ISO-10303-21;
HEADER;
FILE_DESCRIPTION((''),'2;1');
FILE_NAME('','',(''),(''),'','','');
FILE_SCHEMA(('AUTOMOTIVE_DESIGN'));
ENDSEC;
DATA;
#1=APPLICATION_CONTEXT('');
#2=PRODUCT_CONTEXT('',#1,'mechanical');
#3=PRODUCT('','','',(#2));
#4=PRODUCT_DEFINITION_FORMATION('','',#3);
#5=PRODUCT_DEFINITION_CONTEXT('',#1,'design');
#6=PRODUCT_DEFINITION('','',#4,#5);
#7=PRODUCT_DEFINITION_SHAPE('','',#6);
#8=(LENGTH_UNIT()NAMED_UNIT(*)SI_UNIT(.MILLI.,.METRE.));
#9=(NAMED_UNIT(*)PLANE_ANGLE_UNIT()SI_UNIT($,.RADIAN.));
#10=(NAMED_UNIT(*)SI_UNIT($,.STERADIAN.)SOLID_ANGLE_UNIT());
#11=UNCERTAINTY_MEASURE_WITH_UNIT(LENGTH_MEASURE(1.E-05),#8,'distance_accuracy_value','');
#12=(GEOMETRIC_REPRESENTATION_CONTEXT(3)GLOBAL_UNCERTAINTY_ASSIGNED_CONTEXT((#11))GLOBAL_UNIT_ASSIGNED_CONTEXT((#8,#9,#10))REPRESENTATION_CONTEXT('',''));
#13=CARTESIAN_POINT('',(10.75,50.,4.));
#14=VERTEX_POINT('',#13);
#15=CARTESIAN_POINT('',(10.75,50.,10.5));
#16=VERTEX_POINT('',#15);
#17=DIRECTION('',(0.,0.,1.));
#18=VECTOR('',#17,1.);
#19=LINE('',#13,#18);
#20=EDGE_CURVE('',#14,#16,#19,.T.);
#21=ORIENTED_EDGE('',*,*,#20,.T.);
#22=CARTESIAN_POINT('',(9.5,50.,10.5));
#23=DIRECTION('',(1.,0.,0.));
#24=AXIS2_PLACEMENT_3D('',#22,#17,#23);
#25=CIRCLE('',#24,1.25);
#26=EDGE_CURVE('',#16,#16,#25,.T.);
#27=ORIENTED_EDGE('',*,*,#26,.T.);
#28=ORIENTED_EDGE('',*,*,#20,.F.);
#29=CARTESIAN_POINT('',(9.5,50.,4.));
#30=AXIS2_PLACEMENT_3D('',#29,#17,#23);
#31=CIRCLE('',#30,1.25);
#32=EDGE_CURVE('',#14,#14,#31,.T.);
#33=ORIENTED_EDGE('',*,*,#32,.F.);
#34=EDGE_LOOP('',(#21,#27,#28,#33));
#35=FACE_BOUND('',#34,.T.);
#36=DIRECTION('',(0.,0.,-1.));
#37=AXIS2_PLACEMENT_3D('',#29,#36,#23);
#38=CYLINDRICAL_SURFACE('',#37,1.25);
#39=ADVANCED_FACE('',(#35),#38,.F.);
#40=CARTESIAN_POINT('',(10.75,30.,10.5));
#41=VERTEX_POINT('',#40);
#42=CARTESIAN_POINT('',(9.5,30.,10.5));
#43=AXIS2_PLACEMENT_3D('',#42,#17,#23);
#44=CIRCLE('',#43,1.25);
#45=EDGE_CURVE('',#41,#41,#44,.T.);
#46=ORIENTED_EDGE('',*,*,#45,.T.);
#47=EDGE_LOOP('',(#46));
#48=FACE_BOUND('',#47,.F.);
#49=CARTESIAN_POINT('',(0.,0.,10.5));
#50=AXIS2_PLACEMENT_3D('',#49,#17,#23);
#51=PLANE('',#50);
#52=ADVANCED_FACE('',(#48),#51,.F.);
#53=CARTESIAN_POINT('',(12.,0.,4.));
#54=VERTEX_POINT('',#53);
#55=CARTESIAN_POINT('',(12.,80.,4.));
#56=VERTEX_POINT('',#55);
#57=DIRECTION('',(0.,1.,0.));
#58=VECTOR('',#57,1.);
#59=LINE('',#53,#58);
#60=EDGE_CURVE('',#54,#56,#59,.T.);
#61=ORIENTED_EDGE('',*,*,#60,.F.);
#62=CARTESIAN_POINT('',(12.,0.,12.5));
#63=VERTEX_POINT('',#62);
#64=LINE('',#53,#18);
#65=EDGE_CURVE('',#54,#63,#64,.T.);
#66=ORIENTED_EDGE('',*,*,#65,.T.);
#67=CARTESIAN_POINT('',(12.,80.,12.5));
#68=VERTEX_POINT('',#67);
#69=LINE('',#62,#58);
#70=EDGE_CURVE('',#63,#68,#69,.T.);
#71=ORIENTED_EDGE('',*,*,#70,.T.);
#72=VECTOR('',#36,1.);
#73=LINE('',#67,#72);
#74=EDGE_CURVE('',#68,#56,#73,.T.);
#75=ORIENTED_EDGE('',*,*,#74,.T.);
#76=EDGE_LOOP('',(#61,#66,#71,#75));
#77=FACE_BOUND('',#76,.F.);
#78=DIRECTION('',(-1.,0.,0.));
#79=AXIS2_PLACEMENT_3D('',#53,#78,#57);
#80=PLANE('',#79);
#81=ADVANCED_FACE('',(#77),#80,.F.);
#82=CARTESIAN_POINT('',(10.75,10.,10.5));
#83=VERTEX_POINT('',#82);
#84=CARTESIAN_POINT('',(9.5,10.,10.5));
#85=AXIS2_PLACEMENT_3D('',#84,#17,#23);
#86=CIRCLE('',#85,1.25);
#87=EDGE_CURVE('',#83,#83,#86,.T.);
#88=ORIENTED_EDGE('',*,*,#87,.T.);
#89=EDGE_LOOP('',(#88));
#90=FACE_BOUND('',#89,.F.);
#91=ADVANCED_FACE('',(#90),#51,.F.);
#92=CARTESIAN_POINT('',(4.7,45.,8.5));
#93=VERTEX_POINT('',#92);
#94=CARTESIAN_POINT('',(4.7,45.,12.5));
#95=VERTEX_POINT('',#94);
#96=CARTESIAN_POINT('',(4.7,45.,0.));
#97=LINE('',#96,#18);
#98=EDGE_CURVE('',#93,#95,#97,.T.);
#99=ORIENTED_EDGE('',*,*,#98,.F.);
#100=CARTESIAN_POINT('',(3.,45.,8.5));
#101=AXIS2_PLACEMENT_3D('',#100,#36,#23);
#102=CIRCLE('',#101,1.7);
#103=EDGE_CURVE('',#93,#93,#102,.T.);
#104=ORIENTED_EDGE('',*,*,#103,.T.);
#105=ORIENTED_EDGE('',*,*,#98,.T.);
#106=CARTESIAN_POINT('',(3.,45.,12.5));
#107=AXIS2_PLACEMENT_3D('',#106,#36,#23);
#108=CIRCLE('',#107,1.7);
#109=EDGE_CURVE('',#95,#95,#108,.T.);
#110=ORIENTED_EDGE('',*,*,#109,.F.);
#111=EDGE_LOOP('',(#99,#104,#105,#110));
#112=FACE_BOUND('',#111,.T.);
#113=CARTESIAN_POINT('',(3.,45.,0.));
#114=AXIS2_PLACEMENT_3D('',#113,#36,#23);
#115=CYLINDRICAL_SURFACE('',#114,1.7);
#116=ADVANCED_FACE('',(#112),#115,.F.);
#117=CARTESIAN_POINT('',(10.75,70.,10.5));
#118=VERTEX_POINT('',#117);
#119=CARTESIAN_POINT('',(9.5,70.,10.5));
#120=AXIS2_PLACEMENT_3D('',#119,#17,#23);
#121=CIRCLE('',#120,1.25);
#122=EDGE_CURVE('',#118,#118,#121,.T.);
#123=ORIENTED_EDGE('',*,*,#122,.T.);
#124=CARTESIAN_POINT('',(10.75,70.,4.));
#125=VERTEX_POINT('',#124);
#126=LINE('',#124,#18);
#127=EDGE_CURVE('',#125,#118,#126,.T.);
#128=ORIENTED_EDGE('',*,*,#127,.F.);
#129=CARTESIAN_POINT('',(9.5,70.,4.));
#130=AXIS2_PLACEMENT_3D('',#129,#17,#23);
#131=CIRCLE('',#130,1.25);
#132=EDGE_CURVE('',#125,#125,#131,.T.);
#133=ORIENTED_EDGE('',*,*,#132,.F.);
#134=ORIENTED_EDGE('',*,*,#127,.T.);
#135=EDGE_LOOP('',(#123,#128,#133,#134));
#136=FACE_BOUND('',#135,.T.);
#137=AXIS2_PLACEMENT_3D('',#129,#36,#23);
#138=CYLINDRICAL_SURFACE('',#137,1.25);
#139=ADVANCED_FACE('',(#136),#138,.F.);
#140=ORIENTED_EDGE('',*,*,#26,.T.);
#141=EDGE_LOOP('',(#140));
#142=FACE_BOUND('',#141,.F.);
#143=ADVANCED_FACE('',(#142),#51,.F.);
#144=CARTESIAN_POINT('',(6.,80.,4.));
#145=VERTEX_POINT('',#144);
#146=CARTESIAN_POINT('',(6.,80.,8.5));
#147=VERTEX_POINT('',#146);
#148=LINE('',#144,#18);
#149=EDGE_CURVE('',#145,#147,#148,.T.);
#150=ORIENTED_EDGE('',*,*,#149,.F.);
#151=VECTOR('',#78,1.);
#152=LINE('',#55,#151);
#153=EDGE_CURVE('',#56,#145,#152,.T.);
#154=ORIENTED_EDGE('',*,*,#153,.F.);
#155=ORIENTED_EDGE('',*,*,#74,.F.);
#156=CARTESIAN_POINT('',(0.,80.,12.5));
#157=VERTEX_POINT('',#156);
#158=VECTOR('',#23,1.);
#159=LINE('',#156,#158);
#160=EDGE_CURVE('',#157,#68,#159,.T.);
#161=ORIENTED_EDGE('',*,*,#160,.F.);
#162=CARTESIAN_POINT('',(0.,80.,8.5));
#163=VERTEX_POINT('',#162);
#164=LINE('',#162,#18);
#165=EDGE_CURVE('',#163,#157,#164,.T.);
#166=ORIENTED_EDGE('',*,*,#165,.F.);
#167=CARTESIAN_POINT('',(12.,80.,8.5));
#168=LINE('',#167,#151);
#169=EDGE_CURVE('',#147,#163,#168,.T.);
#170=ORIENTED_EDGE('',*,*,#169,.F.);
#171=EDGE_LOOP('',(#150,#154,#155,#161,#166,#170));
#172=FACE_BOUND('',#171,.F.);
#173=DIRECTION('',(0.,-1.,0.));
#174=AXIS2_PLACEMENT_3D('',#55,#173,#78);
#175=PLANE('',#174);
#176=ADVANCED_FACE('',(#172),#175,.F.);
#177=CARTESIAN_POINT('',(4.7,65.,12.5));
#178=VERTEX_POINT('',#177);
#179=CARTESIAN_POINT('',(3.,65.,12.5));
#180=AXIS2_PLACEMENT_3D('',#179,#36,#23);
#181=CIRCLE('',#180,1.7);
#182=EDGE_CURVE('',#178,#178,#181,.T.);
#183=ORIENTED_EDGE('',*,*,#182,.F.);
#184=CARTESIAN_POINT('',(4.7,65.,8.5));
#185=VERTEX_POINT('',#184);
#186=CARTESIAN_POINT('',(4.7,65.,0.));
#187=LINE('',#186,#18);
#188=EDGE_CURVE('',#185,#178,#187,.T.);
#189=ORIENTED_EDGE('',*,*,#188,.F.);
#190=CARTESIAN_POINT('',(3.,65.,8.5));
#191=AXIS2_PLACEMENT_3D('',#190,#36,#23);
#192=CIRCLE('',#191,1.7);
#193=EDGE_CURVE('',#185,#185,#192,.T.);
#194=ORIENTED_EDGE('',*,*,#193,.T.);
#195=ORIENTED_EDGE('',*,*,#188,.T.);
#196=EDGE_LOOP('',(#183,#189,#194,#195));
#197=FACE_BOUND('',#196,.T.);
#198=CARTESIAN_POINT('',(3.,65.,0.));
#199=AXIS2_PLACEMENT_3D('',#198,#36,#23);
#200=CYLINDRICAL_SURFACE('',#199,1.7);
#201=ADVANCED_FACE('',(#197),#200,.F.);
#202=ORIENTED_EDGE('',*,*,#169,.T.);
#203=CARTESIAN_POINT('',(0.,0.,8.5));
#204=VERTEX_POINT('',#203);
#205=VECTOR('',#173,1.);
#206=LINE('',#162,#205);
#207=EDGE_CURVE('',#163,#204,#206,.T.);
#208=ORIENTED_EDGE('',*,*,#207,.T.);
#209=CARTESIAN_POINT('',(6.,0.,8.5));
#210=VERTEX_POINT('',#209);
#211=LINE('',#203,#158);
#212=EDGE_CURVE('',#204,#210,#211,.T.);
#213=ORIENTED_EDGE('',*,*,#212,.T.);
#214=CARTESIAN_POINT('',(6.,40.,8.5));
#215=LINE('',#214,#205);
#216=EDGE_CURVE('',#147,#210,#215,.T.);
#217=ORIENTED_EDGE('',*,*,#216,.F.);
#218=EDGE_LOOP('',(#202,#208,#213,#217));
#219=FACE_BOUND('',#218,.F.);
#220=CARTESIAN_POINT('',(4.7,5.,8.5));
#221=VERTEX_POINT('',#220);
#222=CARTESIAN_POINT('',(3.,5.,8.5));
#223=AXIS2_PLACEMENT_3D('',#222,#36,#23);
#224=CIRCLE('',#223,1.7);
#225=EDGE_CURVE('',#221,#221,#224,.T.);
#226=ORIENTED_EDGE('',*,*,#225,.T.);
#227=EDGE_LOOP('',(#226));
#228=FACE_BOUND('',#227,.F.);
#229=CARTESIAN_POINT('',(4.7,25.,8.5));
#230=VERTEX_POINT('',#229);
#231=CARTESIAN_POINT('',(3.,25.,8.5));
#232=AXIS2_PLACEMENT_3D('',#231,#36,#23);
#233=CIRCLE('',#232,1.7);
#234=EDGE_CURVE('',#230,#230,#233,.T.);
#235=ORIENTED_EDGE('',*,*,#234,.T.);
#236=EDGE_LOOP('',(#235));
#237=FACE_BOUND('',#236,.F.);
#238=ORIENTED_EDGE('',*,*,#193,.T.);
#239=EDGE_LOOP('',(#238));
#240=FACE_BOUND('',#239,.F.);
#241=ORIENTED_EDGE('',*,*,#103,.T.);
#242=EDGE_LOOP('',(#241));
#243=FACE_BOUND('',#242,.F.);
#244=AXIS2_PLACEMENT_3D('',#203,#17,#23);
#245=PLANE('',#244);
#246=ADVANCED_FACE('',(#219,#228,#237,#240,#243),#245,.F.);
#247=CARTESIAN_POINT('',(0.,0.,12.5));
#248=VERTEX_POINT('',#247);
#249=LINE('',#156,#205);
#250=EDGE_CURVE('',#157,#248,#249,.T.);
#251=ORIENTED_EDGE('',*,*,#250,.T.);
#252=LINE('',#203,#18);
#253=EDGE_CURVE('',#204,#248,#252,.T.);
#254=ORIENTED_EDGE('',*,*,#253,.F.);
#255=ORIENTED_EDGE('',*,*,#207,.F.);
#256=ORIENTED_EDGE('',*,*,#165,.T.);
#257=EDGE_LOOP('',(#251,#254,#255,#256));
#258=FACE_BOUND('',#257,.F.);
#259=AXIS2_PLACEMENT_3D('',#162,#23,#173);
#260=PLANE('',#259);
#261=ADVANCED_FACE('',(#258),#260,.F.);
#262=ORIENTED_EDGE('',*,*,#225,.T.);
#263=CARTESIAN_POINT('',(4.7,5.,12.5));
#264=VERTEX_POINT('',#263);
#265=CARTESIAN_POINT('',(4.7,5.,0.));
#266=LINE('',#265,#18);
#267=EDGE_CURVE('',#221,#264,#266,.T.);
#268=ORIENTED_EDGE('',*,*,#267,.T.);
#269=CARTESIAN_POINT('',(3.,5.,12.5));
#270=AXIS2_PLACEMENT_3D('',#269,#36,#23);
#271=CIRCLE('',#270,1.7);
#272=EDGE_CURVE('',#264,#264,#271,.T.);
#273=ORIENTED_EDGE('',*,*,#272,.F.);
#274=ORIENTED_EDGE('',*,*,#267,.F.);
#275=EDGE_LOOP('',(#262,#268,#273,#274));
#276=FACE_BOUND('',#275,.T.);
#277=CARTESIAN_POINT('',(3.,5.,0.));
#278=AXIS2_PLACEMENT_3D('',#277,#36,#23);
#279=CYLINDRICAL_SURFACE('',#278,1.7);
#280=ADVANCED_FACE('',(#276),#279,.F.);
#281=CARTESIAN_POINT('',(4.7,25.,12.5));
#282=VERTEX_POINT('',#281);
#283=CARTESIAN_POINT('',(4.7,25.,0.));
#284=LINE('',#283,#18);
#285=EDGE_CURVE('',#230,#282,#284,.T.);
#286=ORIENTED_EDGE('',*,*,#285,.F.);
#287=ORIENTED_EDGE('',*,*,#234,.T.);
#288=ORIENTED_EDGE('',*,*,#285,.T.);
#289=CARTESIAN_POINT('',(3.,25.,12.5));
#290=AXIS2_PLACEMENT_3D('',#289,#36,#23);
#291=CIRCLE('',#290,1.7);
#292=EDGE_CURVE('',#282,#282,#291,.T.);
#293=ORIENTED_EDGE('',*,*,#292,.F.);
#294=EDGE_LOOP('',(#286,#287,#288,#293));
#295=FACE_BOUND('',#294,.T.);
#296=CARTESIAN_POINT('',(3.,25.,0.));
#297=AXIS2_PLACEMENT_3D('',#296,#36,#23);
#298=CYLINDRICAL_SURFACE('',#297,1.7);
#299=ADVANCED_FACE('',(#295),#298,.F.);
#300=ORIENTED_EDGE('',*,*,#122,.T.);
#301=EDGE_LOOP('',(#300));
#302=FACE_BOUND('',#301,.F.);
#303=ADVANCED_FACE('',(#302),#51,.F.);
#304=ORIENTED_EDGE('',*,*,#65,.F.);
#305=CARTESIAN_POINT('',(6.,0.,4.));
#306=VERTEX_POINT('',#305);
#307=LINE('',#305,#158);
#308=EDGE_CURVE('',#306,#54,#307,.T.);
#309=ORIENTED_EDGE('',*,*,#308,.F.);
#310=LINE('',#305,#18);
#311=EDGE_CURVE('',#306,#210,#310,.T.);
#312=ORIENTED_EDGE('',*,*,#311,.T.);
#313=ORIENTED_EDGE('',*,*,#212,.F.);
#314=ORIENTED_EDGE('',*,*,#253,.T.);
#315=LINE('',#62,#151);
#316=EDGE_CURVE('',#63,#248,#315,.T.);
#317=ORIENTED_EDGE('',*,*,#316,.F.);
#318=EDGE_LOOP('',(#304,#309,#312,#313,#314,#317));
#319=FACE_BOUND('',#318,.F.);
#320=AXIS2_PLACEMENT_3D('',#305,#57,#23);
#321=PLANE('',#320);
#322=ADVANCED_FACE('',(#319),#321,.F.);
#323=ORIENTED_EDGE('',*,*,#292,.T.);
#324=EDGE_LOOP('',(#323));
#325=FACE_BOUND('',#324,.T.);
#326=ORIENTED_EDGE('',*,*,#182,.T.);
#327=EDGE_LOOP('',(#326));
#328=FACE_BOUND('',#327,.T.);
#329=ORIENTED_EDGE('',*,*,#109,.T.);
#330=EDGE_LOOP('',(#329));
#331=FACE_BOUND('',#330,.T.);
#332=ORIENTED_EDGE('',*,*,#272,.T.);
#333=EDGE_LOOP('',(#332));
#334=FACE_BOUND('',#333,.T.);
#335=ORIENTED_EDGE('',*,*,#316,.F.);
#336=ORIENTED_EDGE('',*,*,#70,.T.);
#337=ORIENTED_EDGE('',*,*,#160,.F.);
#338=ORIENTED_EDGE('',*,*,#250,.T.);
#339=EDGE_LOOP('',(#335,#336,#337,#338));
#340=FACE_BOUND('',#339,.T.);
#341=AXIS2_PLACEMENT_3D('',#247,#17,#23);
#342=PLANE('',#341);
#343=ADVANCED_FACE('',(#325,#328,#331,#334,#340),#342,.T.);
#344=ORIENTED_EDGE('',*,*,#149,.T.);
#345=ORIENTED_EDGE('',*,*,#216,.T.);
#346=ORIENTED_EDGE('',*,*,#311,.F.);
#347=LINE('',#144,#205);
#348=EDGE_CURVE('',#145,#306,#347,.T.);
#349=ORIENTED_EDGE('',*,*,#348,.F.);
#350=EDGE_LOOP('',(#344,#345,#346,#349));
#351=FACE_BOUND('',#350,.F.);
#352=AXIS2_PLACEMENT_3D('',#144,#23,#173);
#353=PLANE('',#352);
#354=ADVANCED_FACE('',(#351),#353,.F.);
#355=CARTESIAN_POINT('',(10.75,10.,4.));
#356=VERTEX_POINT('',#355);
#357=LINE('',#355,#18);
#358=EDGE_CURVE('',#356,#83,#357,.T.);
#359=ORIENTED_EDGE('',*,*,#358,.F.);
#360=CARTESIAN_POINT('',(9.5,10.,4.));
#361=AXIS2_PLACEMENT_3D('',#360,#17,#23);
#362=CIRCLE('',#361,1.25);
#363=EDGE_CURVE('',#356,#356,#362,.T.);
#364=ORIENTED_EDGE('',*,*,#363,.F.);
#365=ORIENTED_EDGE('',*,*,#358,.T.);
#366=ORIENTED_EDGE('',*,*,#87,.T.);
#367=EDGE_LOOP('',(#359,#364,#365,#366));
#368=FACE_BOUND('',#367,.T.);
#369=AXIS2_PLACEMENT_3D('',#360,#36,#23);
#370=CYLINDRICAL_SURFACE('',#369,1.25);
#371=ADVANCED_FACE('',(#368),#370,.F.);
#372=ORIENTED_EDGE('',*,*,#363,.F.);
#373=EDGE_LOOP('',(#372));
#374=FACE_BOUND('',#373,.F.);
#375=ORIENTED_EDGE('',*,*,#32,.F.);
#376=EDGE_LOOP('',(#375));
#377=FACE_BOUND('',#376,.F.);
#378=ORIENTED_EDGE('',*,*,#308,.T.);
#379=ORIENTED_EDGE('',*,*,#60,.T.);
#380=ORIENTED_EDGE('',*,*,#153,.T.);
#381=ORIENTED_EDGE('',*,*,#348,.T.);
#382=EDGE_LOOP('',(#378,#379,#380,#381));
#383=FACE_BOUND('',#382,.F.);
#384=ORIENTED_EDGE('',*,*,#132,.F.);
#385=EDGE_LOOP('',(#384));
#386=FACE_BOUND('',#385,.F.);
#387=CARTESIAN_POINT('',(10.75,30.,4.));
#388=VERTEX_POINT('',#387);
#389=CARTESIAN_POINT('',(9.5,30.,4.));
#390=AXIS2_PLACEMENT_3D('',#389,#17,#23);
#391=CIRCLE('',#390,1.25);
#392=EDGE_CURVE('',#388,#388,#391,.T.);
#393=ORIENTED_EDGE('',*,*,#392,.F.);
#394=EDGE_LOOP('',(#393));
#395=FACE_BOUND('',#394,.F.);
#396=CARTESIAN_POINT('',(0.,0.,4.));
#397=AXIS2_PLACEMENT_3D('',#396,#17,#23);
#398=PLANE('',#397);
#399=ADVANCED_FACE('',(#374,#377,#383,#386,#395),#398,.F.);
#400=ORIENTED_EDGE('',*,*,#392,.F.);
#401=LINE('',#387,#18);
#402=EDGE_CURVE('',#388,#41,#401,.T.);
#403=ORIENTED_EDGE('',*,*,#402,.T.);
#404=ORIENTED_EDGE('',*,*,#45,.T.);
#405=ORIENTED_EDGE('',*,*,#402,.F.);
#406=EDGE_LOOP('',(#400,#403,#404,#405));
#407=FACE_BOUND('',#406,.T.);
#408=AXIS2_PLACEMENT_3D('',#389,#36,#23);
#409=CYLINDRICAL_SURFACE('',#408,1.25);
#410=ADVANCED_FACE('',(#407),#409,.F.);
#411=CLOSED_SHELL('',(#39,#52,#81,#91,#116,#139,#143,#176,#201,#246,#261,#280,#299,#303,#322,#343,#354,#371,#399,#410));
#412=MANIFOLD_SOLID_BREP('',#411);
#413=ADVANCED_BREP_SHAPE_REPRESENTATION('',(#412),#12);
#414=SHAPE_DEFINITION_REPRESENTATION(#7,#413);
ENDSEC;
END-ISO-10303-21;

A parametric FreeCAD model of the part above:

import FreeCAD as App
import Part
import Sketcher


def add_polygon(sketch, points):
    """Adds a closed chain of lines whose ends are joined by coincident constraints."""
    first, n = sketch.GeometryCount, len(points)
    for a, b in zip(points, points[1:] + points[:1]):
        sketch.addGeometry(Part.LineSegment(App.Vector(*a, 0), App.Vector(*b, 0)), False)
    for i in range(n):
        sketch.addConstraint(Sketcher.Constraint("Coincident", first + i, 2, first + (i + 1) % n, 1))

doc = App.newDocument("Part")
body = doc.addObject("PartDesign::Body", "Body")

sketch1 = body.newObject("Sketcher::SketchObject", "Sketch")
sketch1.AttachmentSupport = (doc.getObject("XY_Plane"), [""])
sketch1.MapMode = "FlatFace"
sketch1.AttachmentOffset = App.Placement(App.Vector(0, 0, 4), App.Rotation())
add_polygon(sketch1, [(6, 80), (6, 0), (12, 0), (12, 80)])
sketch1.addConstraint([
    Sketcher.Constraint("Vertical", 0),
    Sketcher.Constraint("Horizontal", 1),
    Sketcher.Constraint("Vertical", 2),
    Sketcher.Constraint("Horizontal", 3),
    Sketcher.Constraint("PointOnObject", 0, 2, -1),
    Sketcher.Constraint("DistanceX", 1, 1, 1, 2, 6.0),
    Sketcher.Constraint("DistanceY", 0, 2, 0, 1, 80.0),
    Sketcher.Constraint("DistanceX", -1, 1, 0, 2, 6.0),
])
pad1 = body.newObject("PartDesign::Pad", "Pad")
pad1.Profile = sketch1
pad1.Length = 8.5

sketch2 = body.newObject("Sketcher::SketchObject", "Sketch001")
sketch2.AttachmentSupport = (doc.getObject("XY_Plane"), [""])
sketch2.MapMode = "FlatFace"
sketch2.AttachmentOffset = App.Placement(App.Vector(0, 0, 8.5), App.Rotation())
add_polygon(sketch2, [(0, 80), (0, 0), (12, 0), (12, 80)])
sketch2.addConstraint([
    Sketcher.Constraint("Vertical", 0),
    Sketcher.Constraint("Horizontal", 1),
    Sketcher.Constraint("Vertical", 2),
    Sketcher.Constraint("Horizontal", 3),
    Sketcher.Constraint("Coincident", 0, 2, -1, 1),
    Sketcher.Constraint("DistanceX", 1, 1, 1, 2, 12.0),
    Sketcher.Constraint("DistanceY", 0, 2, 0, 1, 80.0),
])
pad2 = body.newObject("PartDesign::Pad", "Pad001")
pad2.Profile = sketch2
pad2.Length = 4

sketch3 = body.newObject("Sketcher::SketchObject", "Sketch002")
sketch3.AttachmentSupport = (doc.getObject("XY_Plane"), [""])
sketch3.MapMode = "FlatFace"
sketch3.addGeometry([
    Part.Circle(App.Vector(3, 5, 0), App.Vector(0, 0, 1), 1.7),
    Part.Circle(App.Vector(3, 25, 0), App.Vector(0, 0, 1), 1.7),
    Part.Circle(App.Vector(3, 45, 0), App.Vector(0, 0, 1), 1.7),
    Part.Circle(App.Vector(3, 65, 0), App.Vector(0, 0, 1), 1.7),
], False)
sketch3.addConstraint([
    Sketcher.Constraint("Equal", 0, 1),
    Sketcher.Constraint("Equal", 1, 2),
    Sketcher.Constraint("Equal", 2, 3),
    Sketcher.Constraint("Vertical", 0, 3, 1, 3),
    Sketcher.Constraint("Vertical", 1, 3, 2, 3),
    Sketcher.Constraint("Vertical", 2, 3, 3, 3),
    Sketcher.Constraint("Diameter", 0, 3.4),
    Sketcher.Constraint("DistanceX", -1, 1, 0, 3, 3.0),
    Sketcher.Constraint("DistanceY", -1, 1, 0, 3, 5.0),
    Sketcher.Constraint("DistanceY", -1, 1, 1, 3, 25.0),
    Sketcher.Constraint("DistanceY", -1, 1, 2, 3, 45.0),
    Sketcher.Constraint("DistanceY", -1, 1, 3, 3, 65.0),
])
pocket1 = body.newObject("PartDesign::Pocket", "Pocket")
pocket1.Profile = sketch3
pocket1.Type = "ThroughAll"
pocket1.Reversed = True

sketch4 = body.newObject("Sketcher::SketchObject", "Sketch003")
sketch4.AttachmentSupport = (doc.getObject("XY_Plane"), [""])
sketch4.MapMode = "FlatFace"
sketch4.AttachmentOffset = App.Placement(App.Vector(0, 0, 4), App.Rotation())
sketch4.addGeometry([
    Part.Circle(App.Vector(9.5, 10, 0), App.Vector(0, 0, 1), 1.25),
    Part.Circle(App.Vector(9.5, 30, 0), App.Vector(0, 0, 1), 1.25),
    Part.Circle(App.Vector(9.5, 50, 0), App.Vector(0, 0, 1), 1.25),
    Part.Circle(App.Vector(9.5, 70, 0), App.Vector(0, 0, 1), 1.25),
], False)
sketch4.addConstraint([
    Sketcher.Constraint("Equal", 0, 1),
    Sketcher.Constraint("Equal", 1, 2),
    Sketcher.Constraint("Equal", 2, 3),
    Sketcher.Constraint("Vertical", 0, 3, 1, 3),
    Sketcher.Constraint("Vertical", 1, 3, 2, 3),
    Sketcher.Constraint("Vertical", 2, 3, 3, 3),
    Sketcher.Constraint("Diameter", 0, 2.5),
    Sketcher.Constraint("DistanceY", -1, 1, 0, 3, 10.0),
    Sketcher.Constraint("DistanceY", -1, 1, 1, 3, 30.0),
    Sketcher.Constraint("DistanceY", -1, 1, 2, 3, 50.0),
    Sketcher.Constraint("DistanceY", -1, 1, 3, 3, 70.0),
    Sketcher.Constraint("DistanceX", -1, 1, 0, 3, 9.5),
])
pocket2 = body.newObject("PartDesign::Pocket", "Pocket001")
pocket2.Profile = sketch4
pocket2.Length = 6.5
pocket2.Reversed = True

doc.recompute()
